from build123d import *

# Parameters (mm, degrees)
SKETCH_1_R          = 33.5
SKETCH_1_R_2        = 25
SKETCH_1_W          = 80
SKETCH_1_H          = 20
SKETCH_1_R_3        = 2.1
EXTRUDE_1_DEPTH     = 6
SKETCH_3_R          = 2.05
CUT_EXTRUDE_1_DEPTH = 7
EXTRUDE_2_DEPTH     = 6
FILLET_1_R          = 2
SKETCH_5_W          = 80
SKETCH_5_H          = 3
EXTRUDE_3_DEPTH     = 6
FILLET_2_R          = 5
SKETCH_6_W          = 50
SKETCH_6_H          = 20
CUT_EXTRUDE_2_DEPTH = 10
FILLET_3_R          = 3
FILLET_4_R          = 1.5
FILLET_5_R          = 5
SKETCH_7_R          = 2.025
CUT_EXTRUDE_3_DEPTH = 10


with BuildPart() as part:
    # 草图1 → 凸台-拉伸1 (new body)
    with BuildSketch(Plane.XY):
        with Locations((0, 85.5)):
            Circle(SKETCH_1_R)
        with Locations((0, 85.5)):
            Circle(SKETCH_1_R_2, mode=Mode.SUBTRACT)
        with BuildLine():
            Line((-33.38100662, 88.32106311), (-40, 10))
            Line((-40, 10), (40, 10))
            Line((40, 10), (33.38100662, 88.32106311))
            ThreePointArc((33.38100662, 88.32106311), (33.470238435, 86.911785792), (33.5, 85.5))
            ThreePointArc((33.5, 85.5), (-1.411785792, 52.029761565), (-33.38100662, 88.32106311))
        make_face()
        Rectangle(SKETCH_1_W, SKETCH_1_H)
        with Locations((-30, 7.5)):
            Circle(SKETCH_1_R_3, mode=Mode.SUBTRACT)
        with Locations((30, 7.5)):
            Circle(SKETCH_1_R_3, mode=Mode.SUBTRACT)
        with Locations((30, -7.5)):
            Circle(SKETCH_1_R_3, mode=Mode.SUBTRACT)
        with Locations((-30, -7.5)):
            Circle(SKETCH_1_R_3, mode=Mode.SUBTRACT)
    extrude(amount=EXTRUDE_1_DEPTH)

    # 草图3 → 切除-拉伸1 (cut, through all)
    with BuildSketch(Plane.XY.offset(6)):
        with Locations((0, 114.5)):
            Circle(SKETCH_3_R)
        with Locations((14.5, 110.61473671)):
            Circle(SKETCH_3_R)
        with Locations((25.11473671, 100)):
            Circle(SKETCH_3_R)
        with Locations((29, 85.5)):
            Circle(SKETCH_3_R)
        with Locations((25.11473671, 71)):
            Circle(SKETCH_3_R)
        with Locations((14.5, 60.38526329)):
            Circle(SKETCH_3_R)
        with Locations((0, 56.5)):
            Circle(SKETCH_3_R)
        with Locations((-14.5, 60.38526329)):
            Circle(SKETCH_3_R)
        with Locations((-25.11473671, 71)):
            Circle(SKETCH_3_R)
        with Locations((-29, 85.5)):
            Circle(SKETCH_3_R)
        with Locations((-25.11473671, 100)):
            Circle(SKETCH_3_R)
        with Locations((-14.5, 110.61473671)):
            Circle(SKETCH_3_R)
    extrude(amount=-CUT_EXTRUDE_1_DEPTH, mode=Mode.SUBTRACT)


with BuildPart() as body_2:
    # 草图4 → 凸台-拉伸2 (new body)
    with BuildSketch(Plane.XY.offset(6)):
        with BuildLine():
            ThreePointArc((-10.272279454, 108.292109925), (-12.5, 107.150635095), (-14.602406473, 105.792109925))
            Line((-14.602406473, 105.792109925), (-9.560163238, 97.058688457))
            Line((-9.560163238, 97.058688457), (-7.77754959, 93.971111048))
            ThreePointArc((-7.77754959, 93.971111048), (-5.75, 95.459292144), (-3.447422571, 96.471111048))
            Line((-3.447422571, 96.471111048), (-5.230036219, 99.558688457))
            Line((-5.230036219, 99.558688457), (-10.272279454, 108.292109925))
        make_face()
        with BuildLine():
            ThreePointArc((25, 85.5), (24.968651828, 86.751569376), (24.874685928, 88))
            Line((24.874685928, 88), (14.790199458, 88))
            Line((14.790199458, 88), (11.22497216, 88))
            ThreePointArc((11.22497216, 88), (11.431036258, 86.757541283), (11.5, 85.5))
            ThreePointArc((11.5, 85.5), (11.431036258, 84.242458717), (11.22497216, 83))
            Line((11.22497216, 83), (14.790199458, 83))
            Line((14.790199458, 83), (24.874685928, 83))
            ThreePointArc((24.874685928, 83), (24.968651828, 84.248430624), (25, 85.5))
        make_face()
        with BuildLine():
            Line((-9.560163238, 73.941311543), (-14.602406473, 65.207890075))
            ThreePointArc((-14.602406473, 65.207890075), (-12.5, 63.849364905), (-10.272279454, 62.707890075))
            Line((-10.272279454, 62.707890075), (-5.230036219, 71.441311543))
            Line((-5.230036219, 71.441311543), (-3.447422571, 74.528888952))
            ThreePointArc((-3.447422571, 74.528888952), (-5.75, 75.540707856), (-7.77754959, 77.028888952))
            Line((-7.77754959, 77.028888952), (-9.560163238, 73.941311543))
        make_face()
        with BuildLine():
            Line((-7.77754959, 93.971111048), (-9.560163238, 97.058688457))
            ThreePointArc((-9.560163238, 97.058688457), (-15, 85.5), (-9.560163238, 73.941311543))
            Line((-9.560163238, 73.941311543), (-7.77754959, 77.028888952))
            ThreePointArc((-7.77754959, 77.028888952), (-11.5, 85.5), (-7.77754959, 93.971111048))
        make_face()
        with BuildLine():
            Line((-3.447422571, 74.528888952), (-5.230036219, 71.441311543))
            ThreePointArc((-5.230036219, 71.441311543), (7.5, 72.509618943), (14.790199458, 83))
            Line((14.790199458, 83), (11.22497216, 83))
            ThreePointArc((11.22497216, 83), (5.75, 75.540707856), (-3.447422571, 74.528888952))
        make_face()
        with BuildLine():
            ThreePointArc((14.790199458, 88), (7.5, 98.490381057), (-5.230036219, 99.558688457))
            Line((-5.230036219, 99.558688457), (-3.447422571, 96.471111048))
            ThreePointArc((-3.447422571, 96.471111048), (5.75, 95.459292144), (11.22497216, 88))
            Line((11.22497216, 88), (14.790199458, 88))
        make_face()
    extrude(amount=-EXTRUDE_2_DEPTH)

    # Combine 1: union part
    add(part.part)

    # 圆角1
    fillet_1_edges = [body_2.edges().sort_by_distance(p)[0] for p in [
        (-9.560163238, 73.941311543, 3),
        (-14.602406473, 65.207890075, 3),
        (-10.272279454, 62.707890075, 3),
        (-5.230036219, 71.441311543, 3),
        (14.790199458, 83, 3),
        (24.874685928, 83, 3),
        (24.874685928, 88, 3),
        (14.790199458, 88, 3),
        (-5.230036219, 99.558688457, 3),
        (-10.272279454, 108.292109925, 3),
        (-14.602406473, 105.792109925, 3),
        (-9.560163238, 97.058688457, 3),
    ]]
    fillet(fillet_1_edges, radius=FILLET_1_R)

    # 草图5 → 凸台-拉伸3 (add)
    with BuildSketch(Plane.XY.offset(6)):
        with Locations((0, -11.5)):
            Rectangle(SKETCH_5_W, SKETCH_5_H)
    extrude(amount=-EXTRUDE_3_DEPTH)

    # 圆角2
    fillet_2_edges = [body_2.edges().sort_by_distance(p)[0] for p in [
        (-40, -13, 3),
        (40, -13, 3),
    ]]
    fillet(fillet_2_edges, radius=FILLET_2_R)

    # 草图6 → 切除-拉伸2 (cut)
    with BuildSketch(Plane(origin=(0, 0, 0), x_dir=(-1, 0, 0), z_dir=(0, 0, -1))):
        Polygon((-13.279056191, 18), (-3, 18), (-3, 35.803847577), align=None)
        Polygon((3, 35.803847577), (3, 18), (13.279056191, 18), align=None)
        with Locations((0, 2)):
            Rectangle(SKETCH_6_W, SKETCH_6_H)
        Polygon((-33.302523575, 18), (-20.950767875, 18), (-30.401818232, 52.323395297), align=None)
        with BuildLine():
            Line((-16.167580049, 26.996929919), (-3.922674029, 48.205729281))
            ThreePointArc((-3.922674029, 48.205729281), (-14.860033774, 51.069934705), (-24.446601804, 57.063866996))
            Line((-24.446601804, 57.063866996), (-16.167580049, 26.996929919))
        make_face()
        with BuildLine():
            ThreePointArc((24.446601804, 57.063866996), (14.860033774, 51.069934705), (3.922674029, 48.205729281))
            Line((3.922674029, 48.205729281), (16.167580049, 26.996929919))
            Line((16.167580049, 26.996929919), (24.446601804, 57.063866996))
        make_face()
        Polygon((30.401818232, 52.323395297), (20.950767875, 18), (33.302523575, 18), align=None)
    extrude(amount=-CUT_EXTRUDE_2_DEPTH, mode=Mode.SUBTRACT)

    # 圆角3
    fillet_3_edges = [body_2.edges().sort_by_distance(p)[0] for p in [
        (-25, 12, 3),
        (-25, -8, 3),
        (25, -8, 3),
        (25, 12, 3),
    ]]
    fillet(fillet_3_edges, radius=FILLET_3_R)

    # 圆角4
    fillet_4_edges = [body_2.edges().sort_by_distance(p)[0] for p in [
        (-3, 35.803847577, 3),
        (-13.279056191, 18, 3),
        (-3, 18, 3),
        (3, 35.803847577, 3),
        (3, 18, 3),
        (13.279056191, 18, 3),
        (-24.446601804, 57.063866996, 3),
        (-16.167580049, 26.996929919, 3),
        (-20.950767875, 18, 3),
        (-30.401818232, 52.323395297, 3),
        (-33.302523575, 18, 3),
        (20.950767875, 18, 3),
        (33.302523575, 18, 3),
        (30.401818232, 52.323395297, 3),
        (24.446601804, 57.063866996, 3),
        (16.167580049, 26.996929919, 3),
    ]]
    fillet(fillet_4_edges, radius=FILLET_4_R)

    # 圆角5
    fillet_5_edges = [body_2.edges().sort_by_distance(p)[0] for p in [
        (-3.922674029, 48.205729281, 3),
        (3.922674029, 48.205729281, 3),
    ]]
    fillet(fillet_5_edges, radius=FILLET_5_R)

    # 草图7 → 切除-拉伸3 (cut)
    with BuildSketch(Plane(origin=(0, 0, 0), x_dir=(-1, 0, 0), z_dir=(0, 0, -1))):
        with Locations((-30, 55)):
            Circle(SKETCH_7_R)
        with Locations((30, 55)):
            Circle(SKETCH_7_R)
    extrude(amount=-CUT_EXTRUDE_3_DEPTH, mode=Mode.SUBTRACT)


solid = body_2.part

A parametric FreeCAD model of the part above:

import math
import FreeCAD as App
import Part
import Sketcher

V = App.Vector
Q = App.Units.Quantity


def edges_at(feature, points):
    """Names of the edges that pass closest to the given points."""
    edges = feature.Shape.Edges
    near = lambda p: min(range(len(edges)), key=lambda i: edges[i].distToShape(Part.Vertex(*p))[0])
    return sorted({f"Edge{near(p) + 1}" for p in points})


def add_polygon(sketch, points):
    """Adds a closed chain of lines whose ends are joined by coincident constraints."""
    first, n = sketch.GeometryCount, len(points)
    for a, b in zip(points, points[1:] + points[:1]):
        sketch.addGeometry(Part.LineSegment(App.Vector(*a, 0), App.Vector(*b, 0)), False)
    for i in range(n):
        sketch.addConstraint(Sketcher.Constraint("Coincident", first + i, 2, first + (i + 1) % n, 1))

doc = App.newDocument("Part")
body = doc.addObject("PartDesign::Body", "Body")

sketch1 = body.newObject("Sketcher::SketchObject", "Sketch")
sketch1.AttachmentSupport = (doc.getObject("XY_Plane"), [""])
sketch1.MapMode = "FlatFace"
sketch1.addGeometry(Part.ArcOfCircle(Part.Circle(V(0, 85.5, 0), V(0, 0, 1), 33.5), math.radians(4.830647), math.radians(175.169353)), False)
sketch1.addGeometry(Part.LineSegment(V(-33.381007, 88.321063, 0), V(-40, 10, 0)), False)
sketch1.addGeometry(Part.LineSegment(V(-40, 10, 0), V(-40, -10, 0)), False)
sketch1.addGeometry(Part.LineSegment(V(-40, -10, 0), V(40, -10, 0)), False)
sketch1.addGeometry(Part.LineSegment(V(40, -10, 0), V(40, 10, 0)), False)
sketch1.addGeometry(Part.LineSegment(V(40, 10, 0), V(33.381007, 88.321063, 0)), False)
sketch1.addGeometry(Part.Circle(V(-30, -7.5, 0), V(0, 0, 1), 2.1), False)
sketch1.addGeometry(Part.Circle(V(-30, 7.5, 0), V(0, 0, 1), 2.1), False)
sketch1.addGeometry(Part.Circle(V(30, -7.5, 0), V(0, 0, 1), 2.1), False)
sketch1.addGeometry(Part.Circle(V(30, 7.5, 0), V(0, 0, 1), 2.1), False)
sketch1.addGeometry(Part.Circle(V(0, 85.5, 0), V(0, 0, 1), 25), False)
sketch1.addConstraint(Sketcher.Constraint("Tangent", 0, 2, 1, 1))
sketch1.addConstraint(Sketcher.Constraint("Coincident", 1, 2, 2, 1))
sketch1.addConstraint(Sketcher.Constraint("Coincident", 2, 2, 3, 1))
sketch1.addConstraint(Sketcher.Constraint("Coincident", 3, 2, 4, 1))
sketch1.addConstraint(Sketcher.Constraint("Coincident", 4, 2, 5, 1))
sketch1.addConstraint(Sketcher.Constraint("Tangent", 5, 2, 0, 1))
sketch1.addConstraint(Sketcher.Constraint("Vertical", 2))
sketch1.addConstraint(Sketcher.Constraint("Horizontal", 3))
sketch1.addConstraint(Sketcher.Constraint("Vertical", 4))
sketch1.addConstraint(Sketcher.Constraint("Coincident", 10, 3, 0, 3))
sketch1.addConstraint(Sketcher.Constraint("Equal", 6, 7))
sketch1.addConstraint(Sketcher.Constraint("Equal", 7, 8))
sketch1.addConstraint(Sketcher.Constraint("Equal", 8, 9))
sketch1.addConstraint(Sketcher.Constraint("Symmetric", 7, 3, 8, 3, -1, 1))
sketch1.addConstraint(Sketcher.Constraint("Symmetric", 6, 3, 9, 3, -1, 1))
sketch1.addConstraint(Sketcher.Constraint("Symmetric", 1, 2, 3, 2, -1, 1))
sketch1.addConstraint(Sketcher.Constraint("Symmetric", 6, 3, 8, 3, -2))
sketch1.addConstraint(Sketcher.Constraint("PointOnObject", 0, 3, -2))
sketch1.addConstraint(Sketcher.Constraint("Horizontal", 1, 2, 4, 2))
sketch1.addConstraint(Sketcher.Constraint("Diameter", 10, Q("50 mm")))
sketch1.addConstraint(Sketcher.Constraint("Diameter", 6, Q("4.2 mm")))
sketch1.addConstraint(Sketcher.Constraint("Radius", 0, Q("33.5 mm")))
sketch1.addConstraint(Sketcher.Constraint("DistanceX", 3, 1, 3, 2, Q("80 mm")))
sketch1.addConstraint(Sketcher.Constraint("DistanceY", 2, 2, 2, 1, Q("20 mm")))
sketch1.addConstraint(Sketcher.Constraint("DistanceX", 6, 3, -1, 1, Q("30 mm")))
sketch1.addConstraint(Sketcher.Constraint("DistanceY", 6, 3, 0, 3, Q("93 mm")))
sketch1.addConstraint(Sketcher.Constraint("DistanceY", 6, 3, 7, 3, Q("15 mm")))
pad1 = body.newObject("PartDesign::Pad", "Pad")
pad1.Profile = sketch1
pad1.Length = 6

sketch2 = body.newObject("Sketcher::SketchObject", "Sketch001")
sketch2.AttachmentSupport = (doc.getObject("XY_Plane"), [""])
sketch2.MapMode = "FlatFace"
sketch2.AttachmentOffset = App.Placement(V(0, 0, 6), App.Rotation())
sketch2.addGeometry(Part.Circle(V(0, 114.5, 0), V(0, 0, 1), 2.05), False)
sketch2.addGeometry(Part.Circle(V(14.5, 110.614737, 0), V(0, 0, 1), 2.05), False)
sketch2.addGeometry(Part.Circle(V(25.114737, 100, 0), V(0, 0, 1), 2.05), False)
sketch2.addGeometry(Part.Circle(V(29, 85.5, 0), V(0, 0, 1), 2.05), False)
sketch2.addGeometry(Part.Circle(V(25.114737, 71, 0), V(0, 0, 1), 2.05), False)
sketch2.addGeometry(Part.Circle(V(14.5, 60.385263, 0), V(0, 0, 1), 2.05), False)
sketch2.addGeometry(Part.Circle(V(0, 56.5, 0), V(0, 0, 1), 2.05), False)
sketch2.addGeometry(Part.Circle(V(-14.5, 60.385263, 0), V(0, 0, 1), 2.05), False)
sketch2.addGeometry(Part.Circle(V(-25.114737, 71, 0), V(0, 0, 1), 2.05), False)
sketch2.addGeometry(Part.Circle(V(-29, 85.5, 0), V(0, 0, 1), 2.05), False)
sketch2.addGeometry(Part.Circle(V(-25.114737, 100, 0), V(0, 0, 1), 2.05), False)
sketch2.addGeometry(Part.Circle(V(-14.5, 110.614737, 0), V(0, 0, 1), 2.05), False)
sketch2.addConstraint(Sketcher.Constraint("Equal", 0, 1))
sketch2.addConstraint(Sketcher.Constraint("Equal", 1, 2))
sketch2.addConstraint(Sketcher.Constraint("Equal", 2, 3))
sketch2.addConstraint(Sketcher.Constraint("Equal", 3, 4))
sketch2.addConstraint(Sketcher.Constraint("Equal", 4, 5))
sketch2.addConstraint(Sketcher.Constraint("Equal", 5, 6))
sketch2.addConstraint(Sketcher.Constraint("Equal", 6, 7))
sketch2.addConstraint(Sketcher.Constraint("Equal", 7, 8))
sketch2.addConstraint(Sketcher.Constraint("Equal", 8, 9))
sketch2.addConstraint(Sketcher.Constraint("Equal", 9, 10))
sketch2.addConstraint(Sketcher.Constraint("Equal", 10, 11))
sketch2.addConstraint(Sketcher.Constraint("Symmetric", 5, 3, 7, 3, -2))
sketch2.addConstraint(Sketcher.Constraint("Symmetric", 4, 3, 8, 3, -2))
sketch2.addConstraint(Sketcher.Constraint("Symmetric", 3, 3, 9, 3, -2))
sketch2.addConstraint(Sketcher.Constraint("Symmetric", 2, 3, 10, 3, -2))
sketch2.addConstraint(Sketcher.Constraint("Symmetric", 1, 3, 11, 3, -2))
sketch2.addConstraint(Sketcher.Constraint("PointOnObject", 0, 3, -2))
sketch2.addConstraint(Sketcher.Constraint("PointOnObject", 6, 3, -2))
sketch2.addConstraint(Sketcher.Constraint("Vertical", 2, 3, 4, 3))
sketch2.addConstraint(Sketcher.Constraint("Vertical", 1, 3, 5, 3))
sketch2.addConstraint(Sketcher.Constraint("Diameter", 0, Q("4.1 mm")))
sketch2.addConstraint(Sketcher.Constraint("DistanceY", -1, 1, 2, 3, Q("100 mm")))
sketch2.addConstraint(Sketcher.Constraint("DistanceX", -1, 1, 3, 3, Q("29 mm")))
sketch2.addConstraint(Sketcher.Constraint("DistanceY", -1, 1, 4, 3, Q("71 mm")))
sketch2.addConstraint(Sketcher.Constraint("DistanceY", 3, 3, 0, 3, Q("29 mm")))
sketch2.addConstraint(Sketcher.Constraint("DistanceY", 6, 3, 3, 3, Q("29 mm")))
sketch2.addConstraint(Sketcher.Constraint("DistanceX", 7, 3, 5, 3, Q("29 mm")))
sketch2.addConstraint(Sketcher.Constraint("DistanceY", -1, 1, 0, 3, Q("114.5 mm")))
sketch2.addConstraint(Sketcher.Constraint("DistanceY", -1, 1, 1, 3, Q("110.614737 mm")))
sketch2.addConstraint(Sketcher.Constraint("DistanceX", -1, 1, 2, 3, Q("25.114737 mm")))
sketch2.addConstraint(Sketcher.Constraint("DistanceY", -1, 1, 5, 3, Q("60.385263 mm")))
pocket1 = body.newObject("PartDesign::Pocket", "Pocket")
pocket1.Profile = sketch2
pocket1.Type = "ThroughAll"
body2 = doc.addObject("PartDesign::Body", "Body001")

sketch3 = body2.newObject("Sketcher::SketchObject", "Sketch002")
sketch3.AttachmentSupport = (doc.getObject("XY_Plane001"), [""])
sketch3.MapMode = "FlatFace"
sketch3.AttachmentOffset = App.Placement(V(0, 0, 6), App.Rotation())
sketch3.addGeometry(Part.ArcOfCircle(Part.Circle(V(0, 85.5, 0), V(0, 0, 1), 25), math.radians(114.26083), math.radians(125.73917)), False)
sketch3.addGeometry(Part.LineSegment(V(-14.602406, 105.79211, 0), V(-9.560163, 97.058688, 0)), False)
sketch3.addGeometry(Part.ArcOfCircle(Part.Circle(V(0, 85.5, 0), V(0, 0, 1), 15), math.radians(129.594068), math.radians(230.405932)), False)
sketch3.addGeometry(Part.LineSegment(V(-9.560163, 73.941312, 0), V(-14.602406, 65.20789, 0)), False)
sketch3.addGeometry(Part.ArcOfCircle(Part.Circle(V(0, 85.5, 0), V(0, 0, 1), 25), math.radians(-125.73917), math.radians(-114.26083)), False)
sketch3.addGeometry(Part.LineSegment(V(-10.272279, 62.70789, 0), V(-5.230036, 71.441312, 0)), False)
sketch3.addGeometry(Part.ArcOfCircle(Part.Circle(V(0, 85.5, 0), V(0, 0, 1), 15), math.radians(-110.405932), math.radians(-9.594068)), False)
sketch3.addGeometry(Part.LineSegment(V(14.790199, 83, 0), V(24.874686, 83, 0)), False)
sketch3.addGeometry(Part.ArcOfCircle(Part.Circle(V(0, 85.5, 0), V(0, 0, 1), 25), math.radians(-5.73917), math.radians(0)), False)
sketch3.addGeometry(Part.ArcOfCircle(Part.Circle(V(0, 85.5, 0), V(0, 0, 1), 25), math.radians(0), math.radians(5.73917)), False)
sketch3.addGeometry(Part.LineSegment(V(24.874686, 88, 0), V(14.790199, 88, 0)), False)
sketch3.addGeometry(Part.ArcOfCircle(Part.Circle(V(0, 85.5, 0), V(0, 0, 1), 15), math.radians(9.594068), math.radians(110.405932)), False)
sketch3.addGeometry(Part.LineSegment(V(-5.230036, 99.558688, 0), V(-10.272279, 108.29211, 0)), False)
sketch3.addGeometry(Part.ArcOfCircle(Part.Circle(V(0, 85.5, 0), V(0, 0, 1), 11.5), math.radians(0), math.radians(12.555858)), False)
sketch3.addGeometry(Part.ArcOfCircle(Part.Circle(V(0, 85.5, 0), V(0, 0, 1), 11.5), math.radians(-12.555858), math.radians(0)), False)
sketch3.addGeometry(Part.ArcOfCircle(Part.Circle(V(0, 85.5, 0), V(0, 0, 1), 11.5), math.radians(-107.444142), math.radians(-12.555858)), False)
sketch3.addGeometry(Part.ArcOfCircle(Part.Circle(V(0, 85.5, 0), V(0, 0, 1), 11.5), math.radians(-132.555858), math.radians(-107.444142)), False)
sketch3.addGeometry(Part.ArcOfCircle(Part.Circle(V(0, 85.5, 0), V(0, 0, 1), 11.5), math.radians(132.555858), math.radians(227.444142)), False)
sketch3.addGeometry(Part.ArcOfCircle(Part.Circle(V(0, 85.5, 0), V(0, 0, 1), 11.5), math.radians(107.444142), math.radians(132.555858)), False)
sketch3.addGeometry(Part.ArcOfCircle(Part.Circle(V(0, 85.5, 0), V(0, 0, 1), 11.5), math.radians(12.555858), math.radians(107.444142)), False)
sketch3.addConstraint(Sketcher.Constraint("Coincident", 0, 2, 1, 1))
sketch3.addConstraint(Sketcher.Constraint("Coincident", 1, 2, 2, 1))
sketch3.addConstraint(Sketcher.Constraint("Coincident", 2, 2, 3, 1))
sketch3.addConstraint(Sketcher.Constraint("Coincident", 3, 2, 4, 1))
sketch3.addConstraint(Sketcher.Constraint("Coincident", 4, 2, 5, 1))
sketch3.addConstraint(Sketcher.Constraint("Coincident", 5, 2, 6, 1))
sketch3.addConstraint(Sketcher.Constraint("Coincident", 6, 2, 7, 1))
sketch3.addConstraint(Sketcher.Constraint("Coincident", 7, 2, 8, 1))
sketch3.addConstraint(Sketcher.Constraint("Tangent", 8, 2, 9, 1))
sketch3.addConstraint(Sketcher.Constraint("Coincident", 9, 2, 10, 1))
sketch3.addConstraint(Sketcher.Constraint("Coincident", 10, 2, 11, 1))
sketch3.addConstraint(Sketcher.Constraint("Coincident", 11, 2, 12, 1))
sketch3.addConstraint(Sketcher.Constraint("Coincident", 12, 2, 0, 1))
sketch3.addConstraint(Sketcher.Constraint("Tangent", 13, 1, 14, 2))
sketch3.addConstraint(Sketcher.Constraint("Tangent", 14, 1, 15, 2))
sketch3.addConstraint(Sketcher.Constraint("Tangent", 15, 1, 16, 2))
sketch3.addConstraint(Sketcher.Constraint("Tangent", 16, 1, 17, 2))
sketch3.addConstraint(Sketcher.Constraint("Tangent", 17, 1, 18, 2))
sketch3.addConstraint(Sketcher.Constraint("Tangent", 18, 1, 19, 2))
sketch3.addConstraint(Sketcher.Constraint("Tangent", 19, 1, 13, 2))
sketch3.addConstraint(Sketcher.Constraint("Horizontal", 7))
sketch3.addConstraint(Sketcher.Constraint("Horizontal", 10))
sketch3.addConstraint(Sketcher.Constraint("Coincident", 2, 3, 0, 3))
sketch3.addConstraint(Sketcher.Constraint("Coincident", 4, 3, 0, 3))
sketch3.addConstraint(Sketcher.Constraint("Coincident", 6, 3, 0, 3))
sketch3.addConstraint(Sketcher.Constraint("Coincident", 8, 3, 0, 3))
sketch3.addConstraint(Sketcher.Constraint("Coincident", 11, 3, 0, 3))
sketch3.addConstraint(Sketcher.Constraint("Coincident", 13, 3, 0, 3))
sketch3.addConstraint(Sketcher.Constraint("Coincident", 15, 3, 0, 3))
sketch3.addConstraint(Sketcher.Constraint("Coincident", 17, 3, 0, 3))
sketch3.addConstraint(Sketcher.Constraint("Equal", 0, 4))
sketch3.addConstraint(Sketcher.Constraint("Equal", 2, 6))
sketch3.addConstraint(Sketcher.Constraint("Equal", 4, 8))
sketch3.addConstraint(Sketcher.Constraint("Equal", 8, 9))
sketch3.addConstraint(Sketcher.Constraint("Equal", 6, 11))
sketch3.addConstraint(Sketcher.Constraint("PointOnObject", 0, 3, -2))
sketch3.addConstraint(Sketcher.Constraint("Parallel", 3, 5))
sketch3.addConstraint(Sketcher.Constraint("Parallel", 1, 12))
sketch3.addConstraint(Sketcher.Constraint("Horizontal", 19, 3, 8, 2))
sketch3.addConstraint(Sketcher.Constraint("Horizontal", 8, 2, 13, 1))
sketch3.addConstraint(Sketcher.Constraint("Horizontal", 7, 2, 14, 1))
sketch3.addConstraint(Sketcher.Constraint("Horizontal", 10, 2, 19, 1))
sketch3.addConstraint(Sketcher.Constraint("Vertical", 1, 2, 2, 2))
sketch3.addConstraint(Sketcher.Constraint("Vertical", 0, 2, 3, 2))
sketch3.addConstraint(Sketcher.Constraint("Vertical", 7, 2, 9, 2))
sketch3.addConstraint(Sketcher.Constraint("Vertical", 5, 2, 11, 2))
sketch3.addConstraint(Sketcher.Constraint("Vertical", 16, 1, 17, 1))
sketch3.addConstraint(Sketcher.Constraint("Vertical", 15, 1, 18, 1))
sketch3.addConstraint(Sketcher.Constraint("Equal", 3, 5))
sketch3.addConstraint(Sketcher.Constraint("Radius", 0, Q("25 mm")))
sketch3.addConstraint(Sketcher.Constraint("Radius", 2, Q("15 mm")))
sketch3.addConstraint(Sketcher.Constraint("Radius", 13, Q("11.5 mm")))
sketch3.addConstraint(Sketcher.Constraint("Angle", 1, Q("-60 deg")))
sketch3.addConstraint(Sketcher.Constraint("DistanceY", -1, 1, 6, 2, Q("83 mm")))
sketch3.addConstraint(Sketcher.Constraint("DistanceY", -1, 1, 9, 2, Q("88 mm")))
sketch3.addConstraint(Sketcher.Constraint("DistanceY", 4, 2, 3, 2, Q("2.5 mm")))
sketch3.addConstraint(Sketcher.Constraint("DistanceY", 15, 1, 16, 1, Q("2.5 mm")))
sketch3.addConstraint(Sketcher.Constraint("DistanceY", -1, 1, 15, 1, Q("74.528889 mm")))
pad2 = body2.newObject("PartDesign::Pad", "Pad001")
pad2.Profile = sketch3
pad2.Length = 6
pad2.Reversed = True
doc.recompute()

boolean = body2.newObject("PartDesign::Boolean", "Boolean")
boolean.Type = "Fuse"
boolean.addObjects([body])
doc.recompute()

fillet = body2.newObject("PartDesign::Fillet", "Fillet")
fillet.Base = (boolean, edges_at(boolean, [
    (-9.56, 73.941, 3),
    (-14.602, 65.208, 3),
    (-10.272, 62.708, 3),
    (-5.23, 71.441, 3),
    (14.79, 83, 3),
    (24.875, 83, 3),
    (24.875, 88, 3),
    (14.79, 88, 3),
    (-5.23, 99.559, 3),
    (-10.272, 108.292, 3),
    (-14.602, 105.792, 3),
    (-9.56, 97.059, 3),
]))
fillet.Radius = 2

sketch4 = body2.newObject("Sketcher::SketchObject", "Sketch003")
sketch4.AttachmentSupport = (doc.getObject("XY_Plane001"), [""])
sketch4.MapMode = "FlatFace"
sketch4.AttachmentOffset = App.Placement(V(0, 0, 6), App.Rotation())
add_polygon(sketch4, [(-40, -10), (-40, -13), (40, -13), (40, -10)])
sketch4.addConstraint(Sketcher.Constraint("Vertical", 0))
sketch4.addConstraint(Sketcher.Constraint("Horizontal", 1))
sketch4.addConstraint(Sketcher.Constraint("Vertical", 2))
sketch4.addConstraint(Sketcher.Constraint("Horizontal", 3))
sketch4.addConstraint(Sketcher.Constraint("DistanceX", 1, 1, 1, 2, Q("80 mm")))
sketch4.addConstraint(Sketcher.Constraint("DistanceY", 0, 2, 0, 1, Q("3 mm")))
sketch4.addConstraint(Sketcher.Constraint("DistanceX", 0, 2, -1, 1, Q("40 mm")))
sketch4.addConstraint(Sketcher.Constraint("DistanceY", 0, 2, -1, 1, Q("13 mm")))
pad3 = body2.newObject("PartDesign::Pad", "Pad002")
pad3.Profile = sketch4
pad3.Length = 6
pad3.Reversed = True
doc.recompute()

fillet2 = body2.newObject("PartDesign::Fillet", "Fillet001")
fillet2.Base = (pad3, edges_at(pad3, [(-40, -13, 3), (40, -13, 3)]))
fillet2.Radius = 5

sketch5 = body2.newObject("Sketcher::SketchObject", "Sketch004")
sketch5.AttachmentSupport = (doc.getObject("XY_Plane001"), [""])
sketch5.MapMode = "FlatFace"
add_polygon(sketch5, [(13.279056, 18), (3, 18), (3, 35.803848)])
add_polygon(sketch5, [(-3, 35.803848), (-3, 18), (-13.279056, 18)])
add_polygon(sketch5, [(25, 12), (25, -8), (-25, -8), (-25, 12)])
add_polygon(sketch5, [(33.302524, 18), (20.950768, 18), (30.401818, 52.323395)])
sketch5.addGeometry(Part.LineSegment(V(16.16758, 26.99693, 0), V(3.922674, 48.205729, 0)), False)
sketch5.addGeometry(Part.ArcOfCircle(Part.Circle(V(0, 85.5, 0), V(0, 0, 1), 37.5), math.radians(-83.995611), math.radians(-49.314284)), False)
sketch5.addGeometry(Part.LineSegment(V(24.446602, 57.063867, 0), V(16.16758, 26.99693, 0)), False)
sketch5.addGeometry(Part.ArcOfCircle(Part.Circle(V(0, 85.5, 0), V(0, 0, 1), 37.5), math.radians(-130.685716), math.radians(-96.004389)), False)
sketch5.addGeometry(Part.LineSegment(V(-3.922674, 48.205729, 0), V(-16.16758, 26.99693, 0)), False)
sketch5.addGeometry(Part.LineSegment(V(-16.16758, 26.99693, 0), V(-24.446602, 57.063867, 0)), False)
add_polygon(sketch5, [(-30.401818, 52.323395), (-20.950768, 18), (-33.302524, 18)])
sketch5.addConstraint(Sketcher.Constraint("Coincident", 13, 2, 14, 1))
sketch5.addConstraint(Sketcher.Constraint("Coincident", 14, 2, 15, 1))
sketch5.addConstraint(Sketcher.Constraint("Coincident", 15, 2, 13, 1))
sketch5.addConstraint(Sketcher.Constraint("Coincident", 16, 2, 17, 1))
sketch5.addConstraint(Sketcher.Constraint("Coincident", 17, 2, 18, 1))
sketch5.addConstraint(Sketcher.Constraint("Coincident", 18, 2, 16, 1))
sketch5.addConstraint(Sketcher.Constraint("Horizontal", 0))
sketch5.addConstraint(Sketcher.Constraint("Vertical", 1))
sketch5.addConstraint(Sketcher.Constraint("Vertical", 3))
sketch5.addConstraint(Sketcher.Constraint("Horizontal", 4))
sketch5.addConstraint(Sketcher.Constraint("Vertical", 6))
sketch5.addConstraint(Sketcher.Constraint("Horizontal", 7))
sketch5.addConstraint(Sketcher.Constraint("Vertical", 8))
sketch5.addConstraint(Sketcher.Constraint("Horizontal", 9))
sketch5.addConstraint(Sketcher.Constraint("Horizontal", 10))
sketch5.addConstraint(Sketcher.Constraint("Horizontal", 20))
sketch5.addConstraint(Sketcher.Constraint("Coincident", 16, 3, 14, 3))
sketch5.addConstraint(Sketcher.Constraint("Equal", 14, 16))
sketch5.addConstraint(Sketcher.Constraint("Symmetric", 0, 2, 3, 2, -2))
sketch5.addConstraint(Sketcher.Constraint("Symmetric", 13, 2, 16, 2, -2))
sketch5.addConstraint(Sketcher.Constraint("Symmetric", 15, 2, 17, 2, -2))
sketch5.addConstraint(Sketcher.Constraint("Symmetric", 10, 2, 19, 2, -2))
sketch5.addConstraint(Sketcher.Constraint("Symmetric", 11, 2, 21, 2, -2))
sketch5.addConstraint(Sketcher.Constraint("Parallel", 2, 13))
sketch5.addConstraint(Sketcher.Constraint("Parallel", 11, 15))
sketch5.addConstraint(Sketcher.Constraint("Parallel", 5, 17))
sketch5.addConstraint(Sketcher.Constraint("Parallel", 18, 19))
sketch5.addConstraint(Sketcher.Constraint("Horizontal", 1, 2, 5, 2))
sketch5.addConstraint(Sketcher.Constraint("Horizontal", 4, 2, 10, 2))
sketch5.addConstraint(Sketcher.Constraint("Equal", 10, 20))
sketch5.addConstraint(Sketcher.Constraint("Radius", 14, Q("37.5 mm")))
sketch5.addConstraint(Sketcher.Constraint("DistanceX", 7, 2, 7, 1, Q("50 mm")))
sketch5.addConstraint(Sketcher.Constraint("DistanceY", 6, 2, 6, 1, Q("20 mm")))
sketch5.addConstraint(Sketcher.Constraint("Angle", 2, Q("-60 deg")))
sketch5.addConstraint(Sketcher.Constraint("DistanceX", -1, 1, 0, 2, Q("3 mm")))
sketch5.addConstraint(Sketcher.Constraint("DistanceY", -1, 1, 0, 2, Q("18 mm")))
sketch5.addConstraint(Sketcher.Constraint("DistanceX", -1, 1, 6, 2, Q("25 mm")))
sketch5.addConstraint(Sketcher.Constraint("DistanceY", 6, 2, -1, 1, Q("8 mm")))
sketch5.addConstraint(Sketcher.Constraint("DistanceY", -1, 1, 14, 3, Q("85.5 mm")))
sketch5.addConstraint(Sketcher.Constraint("DistanceX", -1, 1, 14, 2, Q("24.446602 mm")))
sketch5.addConstraint(Sketcher.Constraint("DistanceY", 15, 2, 16, 2, Q("21.208799 mm")))
sketch5.addConstraint(Sketcher.Constraint("Distance", 12, Q("34.445748 mm")))
sketch5.addConstraint(Sketcher.Constraint("Distance", 15, Q("31.185941 mm")))
sketch5.addConstraint(Sketcher.Constraint("DistanceX", 0, 2, 0, 1, Q("10.279056 mm")))
sketch5.addConstraint(Sketcher.Constraint("DistanceX", 10, 2, 10, 1, Q("12.351756 mm")))
sketch5.addConstraint(Sketcher.Constraint("DistanceX", -1, 1, 11, 2, Q("30.401818 mm")))
pocket2 = body2.newObject("PartDesign::Pocket", "Pocket001")
pocket2.Profile = sketch5
pocket2.Length = 10
pocket2.Reversed = True
doc.recompute()

fillet3 = body2.newObject("PartDesign::Fillet", "Fillet002")
fillet3.Base = (pocket2, edges_at(pocket2, [
    (-25, 12, 3),
    (-25, -8, 3),
    (25, -8, 3),
    (25, 12, 3),
]))
fillet3.Radius = 3
doc.recompute()

fillet4 = body2.newObject("PartDesign::Fillet", "Fillet003")
fillet4.Base = (fillet3, edges_at(fillet3, [
    (-3, 35.804, 3),
    (-13.279, 18, 3),
    (-3, 18, 3),
    (3, 35.804, 3),
    (3, 18, 3),
    (13.279, 18, 3),
    (-24.447, 57.064, 3),
    (-16.168, 26.997, 3),
    (-20.951, 18, 3),
    (-30.402, 52.323, 3),
    (-33.303, 18, 3),
    (20.951, 18, 3),
    (33.303, 18, 3),
    (30.402, 52.323, 3),
    (24.447, 57.064, 3),
    (16.168, 26.997, 3),
]))
fillet4.Radius = 1.5
doc.recompute()

fillet5 = body2.newObject("PartDesign::Fillet", "Fillet004")
fillet5.Base = (fillet4, edges_at(fillet4, [(-3.923, 48.206, 3), (3.923, 48.206, 3)]))
fillet5.Radius = 5

sketch6 = body2.newObject("Sketcher::SketchObject", "Sketch005")
sketch6.AttachmentSupport = (doc.getObject("XY_Plane001"), [""])
sketch6.MapMode = "FlatFace"
sketch6.addGeometry(Part.Circle(V(30, 55, 0), V(0, 0, 1), 2.025), False)
sketch6.addGeometry(Part.Circle(V(-30, 55, 0), V(0, 0, 1), 2.025), False)
sketch6.addConstraint(Sketcher.Constraint("Equal", 0, 1))
sketch6.addConstraint(Sketcher.Constraint("Symmetric", 0, 3, 1, 3, -2))
sketch6.addConstraint(Sketcher.Constraint("Diameter", 0, Q("4.05 mm")))
sketch6.addConstraint(Sketcher.Constraint("DistanceX", -1, 1, 0, 3, Q("30 mm")))
sketch6.addConstraint(Sketcher.Constraint("DistanceY", -1, 1, 0, 3, Q("55 mm")))
pocket3 = body2.newObject("PartDesign::Pocket", "Pocket002")
pocket3.Profile = sketch6
pocket3.Length = 10
pocket3.Reversed = True

doc.recompute()
